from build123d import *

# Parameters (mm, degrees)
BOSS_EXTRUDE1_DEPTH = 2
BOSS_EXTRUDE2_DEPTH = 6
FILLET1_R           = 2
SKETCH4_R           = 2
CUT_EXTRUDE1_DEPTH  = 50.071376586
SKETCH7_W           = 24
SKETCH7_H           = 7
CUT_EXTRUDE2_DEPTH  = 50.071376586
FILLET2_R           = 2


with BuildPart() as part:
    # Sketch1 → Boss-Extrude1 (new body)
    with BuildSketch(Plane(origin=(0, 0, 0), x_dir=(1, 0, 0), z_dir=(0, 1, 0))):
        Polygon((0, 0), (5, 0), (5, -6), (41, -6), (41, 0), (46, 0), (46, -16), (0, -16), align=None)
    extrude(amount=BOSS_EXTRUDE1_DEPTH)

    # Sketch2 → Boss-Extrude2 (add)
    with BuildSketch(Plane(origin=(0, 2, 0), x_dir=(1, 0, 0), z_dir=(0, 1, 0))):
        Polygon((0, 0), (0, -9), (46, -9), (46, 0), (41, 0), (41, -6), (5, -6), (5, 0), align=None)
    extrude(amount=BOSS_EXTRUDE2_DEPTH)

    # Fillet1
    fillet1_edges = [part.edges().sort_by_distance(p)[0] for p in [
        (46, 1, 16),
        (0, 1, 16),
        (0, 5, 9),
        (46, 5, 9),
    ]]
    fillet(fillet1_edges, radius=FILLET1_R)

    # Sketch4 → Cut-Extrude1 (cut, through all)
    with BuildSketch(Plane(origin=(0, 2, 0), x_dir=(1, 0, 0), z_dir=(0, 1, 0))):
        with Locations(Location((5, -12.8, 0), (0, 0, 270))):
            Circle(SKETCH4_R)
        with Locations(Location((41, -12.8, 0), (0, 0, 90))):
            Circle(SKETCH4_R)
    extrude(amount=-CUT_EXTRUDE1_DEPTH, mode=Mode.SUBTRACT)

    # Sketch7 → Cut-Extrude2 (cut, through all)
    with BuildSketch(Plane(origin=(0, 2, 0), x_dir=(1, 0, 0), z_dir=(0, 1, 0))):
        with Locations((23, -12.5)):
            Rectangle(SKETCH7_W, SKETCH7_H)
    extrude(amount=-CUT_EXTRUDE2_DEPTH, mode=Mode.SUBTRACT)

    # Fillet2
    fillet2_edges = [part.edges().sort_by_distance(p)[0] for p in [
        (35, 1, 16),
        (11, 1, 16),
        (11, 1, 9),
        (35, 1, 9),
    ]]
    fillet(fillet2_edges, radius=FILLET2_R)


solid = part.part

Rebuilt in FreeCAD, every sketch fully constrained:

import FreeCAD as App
import Part
import Sketcher
Q = App.Units.Quantity


def edges_at(feature, points):
    """Names of the edges that pass closest to the given points."""
    edges = feature.Shape.Edges
    near = lambda p: min(range(len(edges)), key=lambda i: edges[i].distToShape(Part.Vertex(*p))[0])
    return sorted({f"Edge{near(p) + 1}" for p in points})

doc = App.newDocument("Part")
body = doc.addObject("PartDesign::Body", "Body")

sketch1 = body.newObject("Sketcher::SketchObject", "Sketch")
sketch1.AttachmentSupport = (doc.getObject("XZ_Plane"), [""])
sketch1.MapMode = "FlatFace"
sketch1.addGeometry([
    Part.LineSegment(App.Vector(5, 0, 0), App.Vector(0, 0, 0)),
    Part.LineSegment(App.Vector(0, 0, 0), App.Vector(0, 16, 0)),
    Part.LineSegment(App.Vector(0, 16, 0), App.Vector(46, 16, 0)),
    Part.LineSegment(App.Vector(46, 16, 0), App.Vector(46, 0, 0)),
    Part.LineSegment(App.Vector(46, 0, 0), App.Vector(41, 0, 0)),
    Part.LineSegment(App.Vector(41, 0, 0), App.Vector(41, 6, 0)),
    Part.LineSegment(App.Vector(41, 6, 0), App.Vector(5, 6, 0)),
    Part.LineSegment(App.Vector(5, 6, 0), App.Vector(5, 0, 0)),
], False)
sketch1.addConstraint([
    Sketcher.Constraint("Coincident", 0, 2, 1, 1),
    Sketcher.Constraint("Coincident", 1, 2, 2, 1),
    Sketcher.Constraint("Coincident", 2, 2, 3, 1),
    Sketcher.Constraint("Coincident", 3, 2, 4, 1),
    Sketcher.Constraint("Coincident", 4, 2, 5, 1),
    Sketcher.Constraint("Coincident", 5, 2, 6, 1),
    Sketcher.Constraint("Coincident", 6, 2, 7, 1),
    Sketcher.Constraint("Coincident", 7, 2, 0, 1),
    Sketcher.Constraint("Horizontal", 0),
    Sketcher.Constraint("Vertical", 1),
    Sketcher.Constraint("Horizontal", 2),
    Sketcher.Constraint("Vertical", 3),
    Sketcher.Constraint("Horizontal", 4),
    Sketcher.Constraint("Vertical", 5),
    Sketcher.Constraint("Horizontal", 6),
    Sketcher.Constraint("Vertical", 7),
    Sketcher.Constraint("Coincident", 0, 2, -1, 1),
    Sketcher.Constraint("PointOnObject", 3, 2, -1),
    Sketcher.Constraint("Equal", 0, 4),
    Sketcher.Constraint("DistanceX", 0, 2, 0, 1, Q("5 mm")),
    Sketcher.Constraint("DistanceX", 2, 1, 2, 2, Q("46 mm")),
    Sketcher.Constraint("DistanceY", 1, 1, 1, 2, Q("16 mm")),
    Sketcher.Constraint("DistanceY", 5, 1, 5, 2, Q("6 mm")),
])
pad1 = body.newObject("PartDesign::Pad", "Pad")
pad1.Profile = sketch1
pad1.Length = 2
pad1.Reversed = True

sketch2 = body.newObject("Sketcher::SketchObject", "Sketch001")
sketch2.AttachmentSupport = (doc.getObject("XZ_Plane"), [""])
sketch2.MapMode = "FlatFace"
sketch2.AttachmentOffset = App.Placement(App.Vector(0, 0, -2), App.Rotation())
sketch2.addGeometry([
    Part.LineSegment(App.Vector(0, 0, 0), App.Vector(0, 9, 0)),
    Part.LineSegment(App.Vector(0, 9, 0), App.Vector(46, 9, 0)),
    Part.LineSegment(App.Vector(46, 9, 0), App.Vector(46, 0, 0)),
    Part.LineSegment(App.Vector(46, 0, 0), App.Vector(41, 0, 0)),
    Part.LineSegment(App.Vector(41, 0, 0), App.Vector(41, 6, 0)),
    Part.LineSegment(App.Vector(41, 6, 0), App.Vector(5, 6, 0)),
    Part.LineSegment(App.Vector(5, 6, 0), App.Vector(5, 0, 0)),
    Part.LineSegment(App.Vector(5, 0, 0), App.Vector(0, 0, 0)),
], False)
sketch2.addConstraint([
    Sketcher.Constraint("Coincident", 0, 2, 1, 1),
    Sketcher.Constraint("Coincident", 1, 2, 2, 1),
    Sketcher.Constraint("Coincident", 2, 2, 3, 1),
    Sketcher.Constraint("Coincident", 3, 2, 4, 1),
    Sketcher.Constraint("Coincident", 4, 2, 5, 1),
    Sketcher.Constraint("Coincident", 5, 2, 6, 1),
    Sketcher.Constraint("Coincident", 6, 2, 7, 1),
    Sketcher.Constraint("Coincident", 7, 2, 0, 1),
    Sketcher.Constraint("Vertical", 0),
    Sketcher.Constraint("Horizontal", 1),
    Sketcher.Constraint("Vertical", 2),
    Sketcher.Constraint("Horizontal", 3),
    Sketcher.Constraint("Vertical", 4),
    Sketcher.Constraint("Horizontal", 5),
    Sketcher.Constraint("Vertical", 6),
    Sketcher.Constraint("Horizontal", 7),
    Sketcher.Constraint("Coincident", 7, 2, -1, 1),
    Sketcher.Constraint("PointOnObject", 2, 2, -1),
    Sketcher.Constraint("Equal", 3, 7),
    Sketcher.Constraint("DistanceX", 1, 1, 1, 2, Q("46 mm")),
    Sketcher.Constraint("DistanceX", 3, 2, 3, 1, Q("5 mm")),
    Sketcher.Constraint("DistanceY", 0, 1, 0, 2, Q("9 mm")),
    Sketcher.Constraint("DistanceY", 4, 1, 4, 2, Q("6 mm")),
])
pad2 = body.newObject("PartDesign::Pad", "Pad001")
pad2.Profile = sketch2
pad2.Length = 6
pad2.Reversed = True
doc.recompute()

fillet = body.newObject("PartDesign::Fillet", "Fillet")
fillet.Base = (pad2, edges_at(pad2, [
    (46, 1, 16),
    (0, 1, 16),
    (0, 5, 9),
    (46, 5, 9),
]))
fillet.Radius = 2

sketch3 = body.newObject("Sketcher::SketchObject", "Sketch002")
sketch3.AttachmentSupport = (doc.getObject("XZ_Plane"), [""])
sketch3.MapMode = "FlatFace"
sketch3.AttachmentOffset = App.Placement(App.Vector(0, 0, -2), App.Rotation())
sketch3.addGeometry([
    Part.Circle(App.Vector(5, 12.8, 0), App.Vector(0, 0, 1), 2),
    Part.Circle(App.Vector(41, 12.8, 0), App.Vector(0, 0, 1), 2),
], False)
sketch3.addConstraint([
    Sketcher.Constraint("Equal", 0, 1),
    Sketcher.Constraint("Horizontal", 0, 3, 1, 3),
    Sketcher.Constraint("Diameter", 0, Q("4 mm")),
    Sketcher.Constraint("DistanceX", -1, 1, 0, 3, Q("5 mm")),
    Sketcher.Constraint("DistanceX", -1, 1, 1, 3, Q("41 mm")),
    Sketcher.Constraint("DistanceY", -1, 1, 0, 3, Q("12.8 mm")),
])
pocket1 = body.newObject("PartDesign::Pocket", "Pocket")
pocket1.Profile = sketch3
pocket1.Type = "ThroughAll"
pocket1.Reversed = True

sketch4 = body.newObject("Sketcher::SketchObject", "Sketch003")
sketch4.AttachmentSupport = (doc.getObject("XZ_Plane"), [""])
sketch4.MapMode = "FlatFace"
sketch4.AttachmentOffset = App.Placement(App.Vector(0, 0, -2), App.Rotation())
sketch4.addGeometry([
    Part.LineSegment(App.Vector(11, 9, 0), App.Vector(11, 16, 0)),
    Part.LineSegment(App.Vector(11, 16, 0), App.Vector(35, 16, 0)),
    Part.LineSegment(App.Vector(35, 16, 0), App.Vector(35, 9, 0)),
    Part.LineSegment(App.Vector(35, 9, 0), App.Vector(11, 9, 0)),
], False)
sketch4.addConstraint([
    Sketcher.Constraint("Coincident", 0, 2, 1, 1),
    Sketcher.Constraint("Coincident", 1, 2, 2, 1),
    Sketcher.Constraint("Coincident", 2, 2, 3, 1),
    Sketcher.Constraint("Coincident", 3, 2, 0, 1),
    Sketcher.Constraint("Vertical", 0),
    Sketcher.Constraint("Horizontal", 1),
    Sketcher.Constraint("Vertical", 2),
    Sketcher.Constraint("Horizontal", 3),
    Sketcher.Constraint("DistanceX", 1, 1, 1, 2, Q("24 mm")),
    Sketcher.Constraint("DistanceY", 0, 1, 0, 2, Q("7 mm")),
    Sketcher.Constraint("DistanceX", -1, 1, 0, 2, Q("11 mm")),
    Sketcher.Constraint("DistanceY", -1, 1, 0, 2, Q("16 mm")),
])
pocket2 = body.newObject("PartDesign::Pocket", "Pocket001")
pocket2.Profile = sketch4
pocket2.Type = "ThroughAll"
pocket2.Reversed = True
doc.recompute()

fillet2 = body.newObject("PartDesign::Fillet", "Fillet001")
fillet2.Base = (pocket2, edges_at(pocket2, [
    (35, 1, 16),
    (11, 1, 16),
    (11, 1, 9),
    (35, 1, 9),
]))
fillet2.Radius = 2

doc.recompute()
